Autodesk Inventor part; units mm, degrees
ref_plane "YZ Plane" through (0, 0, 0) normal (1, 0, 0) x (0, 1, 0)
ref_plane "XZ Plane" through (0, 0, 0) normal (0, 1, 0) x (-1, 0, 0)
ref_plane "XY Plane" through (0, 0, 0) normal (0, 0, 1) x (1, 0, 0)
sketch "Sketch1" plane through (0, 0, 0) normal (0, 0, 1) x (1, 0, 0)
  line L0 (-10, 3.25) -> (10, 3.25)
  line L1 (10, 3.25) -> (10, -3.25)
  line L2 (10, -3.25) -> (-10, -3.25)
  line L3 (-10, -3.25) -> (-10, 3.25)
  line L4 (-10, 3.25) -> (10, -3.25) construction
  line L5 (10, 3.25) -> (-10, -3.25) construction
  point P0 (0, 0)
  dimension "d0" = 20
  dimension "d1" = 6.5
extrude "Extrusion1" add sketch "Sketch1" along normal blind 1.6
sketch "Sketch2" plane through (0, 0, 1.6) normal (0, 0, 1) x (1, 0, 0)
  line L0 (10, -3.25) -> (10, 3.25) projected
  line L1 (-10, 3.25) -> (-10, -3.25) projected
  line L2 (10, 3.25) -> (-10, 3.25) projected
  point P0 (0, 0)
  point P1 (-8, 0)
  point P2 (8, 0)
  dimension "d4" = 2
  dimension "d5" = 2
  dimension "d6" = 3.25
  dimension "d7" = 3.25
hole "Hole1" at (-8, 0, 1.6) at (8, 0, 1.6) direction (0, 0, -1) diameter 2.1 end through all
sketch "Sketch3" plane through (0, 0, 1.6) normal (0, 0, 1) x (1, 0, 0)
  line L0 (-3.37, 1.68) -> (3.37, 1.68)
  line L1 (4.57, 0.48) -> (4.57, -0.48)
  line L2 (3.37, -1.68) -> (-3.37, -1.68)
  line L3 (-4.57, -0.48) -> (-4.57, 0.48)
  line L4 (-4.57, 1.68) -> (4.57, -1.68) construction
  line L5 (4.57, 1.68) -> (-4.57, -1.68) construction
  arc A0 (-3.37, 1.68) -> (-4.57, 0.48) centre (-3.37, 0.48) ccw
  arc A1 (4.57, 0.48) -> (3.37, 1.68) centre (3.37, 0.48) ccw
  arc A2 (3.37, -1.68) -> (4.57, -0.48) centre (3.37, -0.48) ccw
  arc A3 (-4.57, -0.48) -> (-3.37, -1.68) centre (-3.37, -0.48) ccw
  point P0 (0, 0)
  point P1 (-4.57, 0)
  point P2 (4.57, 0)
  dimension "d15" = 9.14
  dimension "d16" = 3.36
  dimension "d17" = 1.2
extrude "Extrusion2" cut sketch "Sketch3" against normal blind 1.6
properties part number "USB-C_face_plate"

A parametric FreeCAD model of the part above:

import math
import FreeCAD as App
import Part
import Sketcher
from FreeCAD import Vector

doc = App.newDocument("Part")
params = doc.addObject("Spreadsheet::Sheet", "Params")
for row, (alias, value) in enumerate([
    ("sketch1_width", "20 mm"),
    ("sketch1_height", "6.5 mm"),
    ("pad1_length", "1.6 mm"),
    ("sketch2_diameter", "2.1 mm"),
    ("hole_diameter", "2.1 mm"),
    ("sketch3_radius", "1.2 mm"),
    ("sketch3_width", "6.74 mm"),
    ("pocket1_length", "1.6 mm"),
], start=1):
    params.set(f"A{row}", alias)
    params.set(f"B{row}", "=" + value)
    params.setAlias(f"B{row}", alias)

body = doc.addObject("PartDesign::Body", "Body")

sketch1 = body.newObject("Sketcher::SketchObject", "Sketch")
sketch1.AttachmentSupport = (doc.getObject("XY_Plane"), [""])
sketch1.MapMode = "FlatFace"
sketch1.addGeometry([
    Part.LineSegment(Vector(10, 3, 0), Vector(-10, 3, 0)),
    Part.LineSegment(Vector(-10, 3, 0), Vector(-10, -3, 0)),
    Part.LineSegment(Vector(-10, -3, 0), Vector(10, -3, 0)),
    Part.LineSegment(Vector(10, -3, 0), Vector(10, 3, 0)),
], False)
sketch1.addConstraint([
    Sketcher.Constraint("Coincident", 0, 2, 1, 1),
    Sketcher.Constraint("Coincident", 1, 2, 2, 1),
    Sketcher.Constraint("Coincident", 2, 2, 3, 1),
    Sketcher.Constraint("Coincident", 3, 2, 0, 1),
    Sketcher.Constraint("Horizontal", 0),
    Sketcher.Constraint("Vertical", 1),
    Sketcher.Constraint("Horizontal", 2),
    Sketcher.Constraint("Vertical", 3),
    Sketcher.Constraint("Symmetric", 0, 2, 2, 2, -1, 1),
    Sketcher.Constraint("DistanceX", 0, 2, 0, 1, 20.0),
    Sketcher.Constraint("DistanceY", 1, 2, 1, 1, 6.5),
])
sketch1.setExpression("Constraints[9]", "Params.sketch1_width")
sketch1.setExpression("Constraints[10]", "Params.sketch1_height")
pad1 = body.newObject("PartDesign::Pad", "Pad")
pad1.Profile = sketch1
pad1.setExpression("Length", "Params.pad1_length")

sketch2 = body.newObject("Sketcher::SketchObject", "Sketch001")
sketch2.AttachmentSupport = (doc.getObject("XY_Plane"), [""])
sketch2.MapMode = "FlatFace"
sketch2.AttachmentOffset = App.Placement(Vector(0, 0, 1.6), App.Rotation())
sketch2.addGeometry([
    Part.Circle(Vector(-8, 0, 0), Vector(0, 0, 1), 1.1),
    Part.Circle(Vector(8, 0, 0), Vector(0, 0, 1), 1.1),
], False)
sketch2.addConstraint([
    Sketcher.Constraint("Equal", 0, 1),
    Sketcher.Constraint("Symmetric", 0, 3, 1, 3, -1, 1),
    Sketcher.Constraint("PointOnObject", 0, 3, -1),
    Sketcher.Constraint("Diameter", 0, 2.1),
    Sketcher.Constraint("DistanceX", 0, 3, -1, 1, 8.0),
])
sketch2.setExpression("Constraints[3]", "Params.sketch2_diameter")
doc.recompute()
hole = body.newObject("PartDesign::Hole", "Hole")
hole.Profile = sketch2
hole.ThreadType = "None"
hole.setExpression("Diameter", "Params.hole_diameter")
hole.DepthType = "ThroughAll"

sketch3 = body.newObject("Sketcher::SketchObject", "Sketch002")
sketch3.AttachmentSupport = (doc.getObject("XY_Plane"), [""])
sketch3.MapMode = "FlatFace"
sketch3.AttachmentOffset = App.Placement(Vector(0, 0, 1.6), App.Rotation())
sketch3.addGeometry([
    Part.LineSegment(Vector(3.4, 1.7, 0), Vector(-3.4, 1.7, 0)),
    Part.ArcOfCircle(Part.Circle(Vector(-3.4, 0.5, 0), Vector(0, 0, 1), 1.2), math.radians(90), math.radians(180)),
    Part.LineSegment(Vector(-4.6, 0.5, 0), Vector(-4.6, -0.5, 0)),
    Part.ArcOfCircle(Part.Circle(Vector(-3.4, -0.5, 0), Vector(0, 0, 1), 1.2), math.radians(180), math.radians(270)),
    Part.LineSegment(Vector(-3.4, -1.7, 0), Vector(3.4, -1.7, 0)),
    Part.ArcOfCircle(Part.Circle(Vector(3.4, -0.5, 0), Vector(0, 0, 1), 1.2), math.radians(-90), math.radians(0)),
    Part.LineSegment(Vector(4.6, -0.5, 0), Vector(4.6, 0.5, 0)),
    Part.ArcOfCircle(Part.Circle(Vector(3.4, 0.5, 0), Vector(0, 0, 1), 1.2), math.radians(0), math.radians(90)),
], False)
sketch3.addConstraint([
    Sketcher.Constraint("Tangent", 0, 2, 1, 1),
    Sketcher.Constraint("Tangent", 1, 2, 2, 1),
    Sketcher.Constraint("Tangent", 2, 2, 3, 1),
    Sketcher.Constraint("Tangent", 3, 2, 4, 1),
    Sketcher.Constraint("Tangent", 4, 2, 5, 1),
    Sketcher.Constraint("Tangent", 5, 2, 6, 1),
    Sketcher.Constraint("Tangent", 6, 2, 7, 1),
    Sketcher.Constraint("Tangent", 7, 2, 0, 1),
    Sketcher.Constraint("Horizontal", 0),
    Sketcher.Constraint("Vertical", 2),
    Sketcher.Constraint("Horizontal", 4),
    Sketcher.Constraint("Vertical", 6),
    Sketcher.Constraint("Equal", 1, 3),
    Sketcher.Constraint("Equal", 3, 5),
    Sketcher.Constraint("Equal", 5, 7),
    Sketcher.Constraint("Symmetric", 1, 3, 5, 3, -1, 1),
    Sketcher.Constraint("Radius", 1, 1.2),
    Sketcher.Constraint("DistanceY", 3, 2, 0, 2, 3.36),
    Sketcher.Constraint("DistanceX", 0, 2, 0, 1, 6.74),
])
sketch3.setExpression("Constraints[16]", "Params.sketch3_radius")
sketch3.setExpression("Constraints[18]", "Params.sketch3_width")
pocket1 = body.newObject("PartDesign::Pocket", "Pocket")
pocket1.Profile = sketch3
pocket1.setExpression("Length", "Params.pocket1_length")

doc.recompute()
